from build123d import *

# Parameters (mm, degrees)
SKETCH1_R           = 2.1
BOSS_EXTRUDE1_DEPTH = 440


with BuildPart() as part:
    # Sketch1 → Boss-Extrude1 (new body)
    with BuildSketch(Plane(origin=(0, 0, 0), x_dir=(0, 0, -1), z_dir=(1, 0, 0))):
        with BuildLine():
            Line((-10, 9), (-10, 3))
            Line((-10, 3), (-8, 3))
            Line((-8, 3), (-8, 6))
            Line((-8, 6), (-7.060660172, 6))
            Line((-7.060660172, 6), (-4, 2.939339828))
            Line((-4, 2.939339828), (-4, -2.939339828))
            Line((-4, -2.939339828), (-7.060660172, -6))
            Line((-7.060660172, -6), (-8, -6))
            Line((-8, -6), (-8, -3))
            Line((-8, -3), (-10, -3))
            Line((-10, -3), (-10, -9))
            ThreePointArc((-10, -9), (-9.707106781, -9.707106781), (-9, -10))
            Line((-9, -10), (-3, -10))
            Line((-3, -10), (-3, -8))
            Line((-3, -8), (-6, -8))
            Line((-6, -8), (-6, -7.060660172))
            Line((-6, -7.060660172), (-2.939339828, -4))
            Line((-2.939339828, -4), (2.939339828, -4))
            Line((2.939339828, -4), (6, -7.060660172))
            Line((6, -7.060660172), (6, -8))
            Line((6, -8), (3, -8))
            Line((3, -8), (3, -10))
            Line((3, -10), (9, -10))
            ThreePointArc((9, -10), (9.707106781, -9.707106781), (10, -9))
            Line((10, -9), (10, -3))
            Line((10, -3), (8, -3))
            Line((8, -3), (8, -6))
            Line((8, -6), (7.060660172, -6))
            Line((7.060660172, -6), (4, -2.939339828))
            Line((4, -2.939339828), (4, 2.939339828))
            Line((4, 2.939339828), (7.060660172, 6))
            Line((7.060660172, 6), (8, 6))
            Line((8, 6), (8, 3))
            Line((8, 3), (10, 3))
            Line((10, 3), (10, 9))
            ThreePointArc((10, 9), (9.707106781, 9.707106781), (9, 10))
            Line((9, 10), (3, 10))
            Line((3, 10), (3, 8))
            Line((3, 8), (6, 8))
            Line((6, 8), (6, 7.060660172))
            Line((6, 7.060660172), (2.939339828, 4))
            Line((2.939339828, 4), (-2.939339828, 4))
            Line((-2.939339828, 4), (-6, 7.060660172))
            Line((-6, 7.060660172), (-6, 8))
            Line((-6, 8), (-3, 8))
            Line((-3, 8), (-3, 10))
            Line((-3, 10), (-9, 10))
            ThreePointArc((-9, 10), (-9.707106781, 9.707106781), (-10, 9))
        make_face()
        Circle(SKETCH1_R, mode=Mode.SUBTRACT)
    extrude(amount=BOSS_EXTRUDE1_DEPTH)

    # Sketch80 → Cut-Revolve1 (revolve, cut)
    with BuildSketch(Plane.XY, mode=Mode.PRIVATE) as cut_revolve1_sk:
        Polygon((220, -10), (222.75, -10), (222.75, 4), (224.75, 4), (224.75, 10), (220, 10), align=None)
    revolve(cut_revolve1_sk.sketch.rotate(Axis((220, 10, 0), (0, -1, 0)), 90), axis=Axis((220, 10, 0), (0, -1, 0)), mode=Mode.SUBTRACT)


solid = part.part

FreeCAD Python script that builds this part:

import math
import FreeCAD as App
import Part
import Sketcher
from FreeCAD import Vector
Q = App.Units.Quantity

doc = App.newDocument("Part")
body = doc.addObject("PartDesign::Body", "Body")

sketch1 = doc.addObject("Sketcher::SketchObject", "Sketch")
body.addObject(sketch1)
sketch1.AttachmentSupport = (doc.YZ_Plane, [""])
sketch1.MapMode = "FlatFace"
sketch1.addGeometry([
    Part.LineSegment(Vector(9, 10, 0), Vector(3, 10, 0)),
    Part.LineSegment(Vector(3, 10, 0), Vector(3, 8, 0)),
    Part.LineSegment(Vector(3, 8, 0), Vector(6, 8, 0)),
    Part.LineSegment(Vector(6, 8, 0), Vector(6, 7.06066, 0)),
    Part.LineSegment(Vector(6, 7.06066, 0), Vector(2.93934, 4, 0)),
    Part.LineSegment(Vector(2.93934, 4, 0), Vector(-2.93934, 4, 0)),
    Part.LineSegment(Vector(-2.93934, 4, 0), Vector(-6, 7.06066, 0)),
    Part.LineSegment(Vector(-6, 7.06066, 0), Vector(-6, 8, 0)),
    Part.LineSegment(Vector(-6, 8, 0), Vector(-3, 8, 0)),
    Part.LineSegment(Vector(-3, 8, 0), Vector(-3, 10, 0)),
    Part.LineSegment(Vector(-3, 10, 0), Vector(-9, 10, 0)),
    Part.ArcOfCircle(Part.Circle(Vector(-9, 9, 0), Vector(0, 0, 1), 1), math.radians(90), math.radians(180)),
    Part.LineSegment(Vector(-10, 9, 0), Vector(-10, 3, 0)),
    Part.LineSegment(Vector(-10, 3, 0), Vector(-8, 3, 0)),
    Part.LineSegment(Vector(-8, 3, 0), Vector(-8, 6, 0)),
    Part.LineSegment(Vector(-8, 6, 0), Vector(-7.06066, 6, 0)),
    Part.LineSegment(Vector(-7.06066, 6, 0), Vector(-4, 2.93934, 0)),
    Part.LineSegment(Vector(-4, 2.93934, 0), Vector(-4, -2.93934, 0)),
    Part.LineSegment(Vector(-4, -2.93934, 0), Vector(-7.06066, -6, 0)),
    Part.LineSegment(Vector(-7.06066, -6, 0), Vector(-8, -6, 0)),
    Part.LineSegment(Vector(-8, -6, 0), Vector(-8, -3, 0)),
    Part.LineSegment(Vector(-8, -3, 0), Vector(-10, -3, 0)),
    Part.LineSegment(Vector(-10, -3, 0), Vector(-10, -9, 0)),
    Part.ArcOfCircle(Part.Circle(Vector(-9, -9, 0), Vector(0, 0, 1), 1), math.radians(-180), math.radians(-90)),
    Part.LineSegment(Vector(-9, -10, 0), Vector(-3, -10, 0)),
    Part.LineSegment(Vector(-3, -10, 0), Vector(-3, -8, 0)),
    Part.LineSegment(Vector(-3, -8, 0), Vector(-6, -8, 0)),
    Part.LineSegment(Vector(-6, -8, 0), Vector(-6, -7.06066, 0)),
    Part.LineSegment(Vector(-6, -7.06066, 0), Vector(-2.93934, -4, 0)),
    Part.LineSegment(Vector(-2.93934, -4, 0), Vector(2.93934, -4, 0)),
    Part.LineSegment(Vector(2.93934, -4, 0), Vector(6, -7.06066, 0)),
    Part.LineSegment(Vector(6, -7.06066, 0), Vector(6, -8, 0)),
    Part.LineSegment(Vector(6, -8, 0), Vector(3, -8, 0)),
    Part.LineSegment(Vector(3, -8, 0), Vector(3, -10, 0)),
    Part.LineSegment(Vector(3, -10, 0), Vector(9, -10, 0)),
    Part.ArcOfCircle(Part.Circle(Vector(9, -9, 0), Vector(0, 0, 1), 1), math.radians(-90), math.radians(0)),
    Part.LineSegment(Vector(10, -9, 0), Vector(10, -3, 0)),
    Part.LineSegment(Vector(10, -3, 0), Vector(8, -3, 0)),
    Part.LineSegment(Vector(8, -3, 0), Vector(8, -6, 0)),
    Part.LineSegment(Vector(8, -6, 0), Vector(7.06066, -6, 0)),
    Part.LineSegment(Vector(7.06066, -6, 0), Vector(4, -2.93934, 0)),
    Part.LineSegment(Vector(4, -2.93934, 0), Vector(4, 2.93934, 0)),
    Part.LineSegment(Vector(4, 2.93934, 0), Vector(7.06066, 6, 0)),
    Part.LineSegment(Vector(7.06066, 6, 0), Vector(8, 6, 0)),
    Part.LineSegment(Vector(8, 6, 0), Vector(8, 3, 0)),
    Part.LineSegment(Vector(8, 3, 0), Vector(10, 3, 0)),
    Part.LineSegment(Vector(10, 3, 0), Vector(10, 9, 0)),
    Part.ArcOfCircle(Part.Circle(Vector(9, 9, 0), Vector(0, 0, 1), 1), math.radians(0), math.radians(90)),
    Part.Circle(Vector(0, 0, 0), Vector(0, 0, 1), 2.1),
], False)
sketch1.addConstraint([
    Sketcher.Constraint("Coincident", 0, 2, 1, 1),
    Sketcher.Constraint("Coincident", 1, 2, 2, 1),
    Sketcher.Constraint("Coincident", 2, 2, 3, 1),
    Sketcher.Constraint("Coincident", 3, 2, 4, 1),
    Sketcher.Constraint("Coincident", 4, 2, 5, 1),
    Sketcher.Constraint("Coincident", 5, 2, 6, 1),
    Sketcher.Constraint("Coincident", 6, 2, 7, 1),
    Sketcher.Constraint("Coincident", 7, 2, 8, 1),
    Sketcher.Constraint("Coincident", 8, 2, 9, 1),
    Sketcher.Constraint("Coincident", 9, 2, 10, 1),
    Sketcher.Constraint("Tangent", 10, 2, 11, 1),
    Sketcher.Constraint("Tangent", 11, 2, 12, 1),
    Sketcher.Constraint("Coincident", 12, 2, 13, 1),
    Sketcher.Constraint("Coincident", 13, 2, 14, 1),
    Sketcher.Constraint("Coincident", 14, 2, 15, 1),
    Sketcher.Constraint("Coincident", 15, 2, 16, 1),
    Sketcher.Constraint("Coincident", 16, 2, 17, 1),
    Sketcher.Constraint("Coincident", 17, 2, 18, 1),
    Sketcher.Constraint("Coincident", 18, 2, 19, 1),
    Sketcher.Constraint("Coincident", 19, 2, 20, 1),
    Sketcher.Constraint("Coincident", 20, 2, 21, 1),
    Sketcher.Constraint("Coincident", 21, 2, 22, 1),
    Sketcher.Constraint("Tangent", 22, 2, 23, 1),
    Sketcher.Constraint("Tangent", 23, 2, 24, 1),
    Sketcher.Constraint("Coincident", 24, 2, 25, 1),
    Sketcher.Constraint("Coincident", 25, 2, 26, 1),
    Sketcher.Constraint("Coincident", 26, 2, 27, 1),
    Sketcher.Constraint("Coincident", 27, 2, 28, 1),
    Sketcher.Constraint("Coincident", 28, 2, 29, 1),
    Sketcher.Constraint("Coincident", 29, 2, 30, 1),
    Sketcher.Constraint("Coincident", 30, 2, 31, 1),
    Sketcher.Constraint("Coincident", 31, 2, 32, 1),
    Sketcher.Constraint("Coincident", 32, 2, 33, 1),
    Sketcher.Constraint("Coincident", 33, 2, 34, 1),
    Sketcher.Constraint("Tangent", 34, 2, 35, 1),
    Sketcher.Constraint("Tangent", 35, 2, 36, 1),
    Sketcher.Constraint("Coincident", 36, 2, 37, 1),
    Sketcher.Constraint("Coincident", 37, 2, 38, 1),
    Sketcher.Constraint("Coincident", 38, 2, 39, 1),
    Sketcher.Constraint("Coincident", 39, 2, 40, 1),
    Sketcher.Constraint("Coincident", 40, 2, 41, 1),
    Sketcher.Constraint("Coincident", 41, 2, 42, 1),
    Sketcher.Constraint("Coincident", 42, 2, 43, 1),
    Sketcher.Constraint("Coincident", 43, 2, 44, 1),
    Sketcher.Constraint("Coincident", 44, 2, 45, 1),
    Sketcher.Constraint("Coincident", 45, 2, 46, 1),
    Sketcher.Constraint("Tangent", 46, 2, 47, 1),
    Sketcher.Constraint("Tangent", 47, 2, 0, 1),
    Sketcher.Constraint("Horizontal", 0),
    Sketcher.Constraint("Vertical", 1),
    Sketcher.Constraint("Horizontal", 2),
    Sketcher.Constraint("Vertical", 3),
    Sketcher.Constraint("Horizontal", 5),
    Sketcher.Constraint("Vertical", 7),
    Sketcher.Constraint("Horizontal", 8),
    Sketcher.Constraint("Vertical", 9),
    Sketcher.Constraint("Horizontal", 10),
    Sketcher.Constraint("Vertical", 12),
    Sketcher.Constraint("Horizontal", 13),
    Sketcher.Constraint("Vertical", 14),
    Sketcher.Constraint("Horizontal", 15),
    Sketcher.Constraint("Vertical", 17),
    Sketcher.Constraint("Horizontal", 19),
    Sketcher.Constraint("Vertical", 20),
    Sketcher.Constraint("Horizontal", 21),
    Sketcher.Constraint("Vertical", 22),
    Sketcher.Constraint("Horizontal", 24),
    Sketcher.Constraint("Vertical", 25),
    Sketcher.Constraint("Horizontal", 26),
    Sketcher.Constraint("Vertical", 27),
    Sketcher.Constraint("Horizontal", 29),
    Sketcher.Constraint("Vertical", 31),
    Sketcher.Constraint("Horizontal", 32),
    Sketcher.Constraint("Vertical", 33),
    Sketcher.Constraint("Horizontal", 34),
    Sketcher.Constraint("Vertical", 36),
    Sketcher.Constraint("Horizontal", 37),
    Sketcher.Constraint("Vertical", 38),
    Sketcher.Constraint("Horizontal", 39),
    Sketcher.Constraint("Vertical", 41),
    Sketcher.Constraint("Horizontal", 43),
    Sketcher.Constraint("Vertical", 44),
    Sketcher.Constraint("Horizontal", 45),
    Sketcher.Constraint("Vertical", 46),
    Sketcher.Constraint("Coincident", 48, 3, -1, 1),
    Sketcher.Constraint("Equal", 11, 23),
    Sketcher.Constraint("Equal", 23, 35),
    Sketcher.Constraint("Equal", 35, 47),
    Sketcher.Constraint("Symmetric", 11, 3, 35, 3, -1, 1),
    Sketcher.Constraint("Symmetric", 23, 3, 47, 3, -1, 1),
    Sketcher.Constraint("Symmetric", 1, 2, 25, 2, -1, 1),
    Sketcher.Constraint("Symmetric", 3, 2, 27, 2, -1, 1),
    Sketcher.Constraint("Symmetric", 4, 2, 28, 2, -1, 1),
    Sketcher.Constraint("Symmetric", 6, 2, 30, 2, -1, 1),
    Sketcher.Constraint("Symmetric", 8, 2, 32, 2, -1, 1),
    Sketcher.Constraint("Symmetric", 13, 2, 37, 2, -1, 1),
    Sketcher.Constraint("Symmetric", 15, 2, 39, 2, -1, 1),
    Sketcher.Constraint("Symmetric", 16, 2, 40, 2, -1, 1),
    Sketcher.Constraint("Symmetric", 18, 2, 42, 2, -1, 1),
    Sketcher.Constraint("Symmetric", 20, 2, 44, 2, -1, 1),
    Sketcher.Constraint("Symmetric", 23, 3, 35, 3, -2),
    Sketcher.Constraint("Symmetric", 3, 2, 6, 2, -2),
    Sketcher.Constraint("Symmetric", 1, 2, 8, 2, -2),
    Sketcher.Constraint("Symmetric", 20, 2, 37, 2, -2),
    Sketcher.Constraint("Symmetric", 18, 2, 39, 2, -2),
    Sketcher.Constraint("Perpendicular", 4, 6),
    Sketcher.Constraint("Parallel", 6, 16),
    Sketcher.Constraint("Perpendicular", 16, 18),
    Sketcher.Constraint("Perpendicular", 28, 30),
    Sketcher.Constraint("Perpendicular", 40, 42),
    Sketcher.Constraint("Horizontal", 17, 2, 40, 2),
    Sketcher.Constraint("Equal", 45, 1),
    Sketcher.Constraint("Equal", 43, 3),
    Sketcher.Constraint("Equal", 34, 12),
    Sketcher.Constraint("Equal", 32, 14),
    Sketcher.Constraint("Equal", 29, 17),
    Sketcher.Constraint("Equal", 6, 16),
    Sketcher.Constraint("Radius", 11, Q("1 mm")),
    Sketcher.Constraint("Diameter", 48, Q("4.2 mm")),
    Sketcher.Constraint("DistanceX", 0, 2, 0, 1, Q("6 mm")),
    Sketcher.Constraint("DistanceX", 2, 1, 2, 2, Q("3 mm")),
    Sketcher.Constraint("DistanceX", 13, 1, 13, 2, Q("2 mm")),
    Sketcher.Constraint("DistanceX", 11, 3, -1, 1, Q("9 mm")),
    Sketcher.Constraint("DistanceY", -1, 1, 4, 2, Q("4 mm")),
    Sketcher.Constraint("DistanceX", 5, 2, 5, 1, Q("5.87868 mm")),
])
pad1 = doc.addObject("PartDesign::Pad", "Pad")
body.addObject(pad1)
pad1.Profile = sketch1
pad1.Length = 440

sketch2 = doc.addObject("Sketcher::SketchObject", "Sketch001")
body.addObject(sketch2)
sketch2.AttachmentSupport = (doc.XY_Plane, [""])
sketch2.MapMode = "FlatFace"
sketch2.addGeometry([
    Part.LineSegment(Vector(220, -10, 0), Vector(222.75, -10, 0)),
    Part.LineSegment(Vector(222.75, -10, 0), Vector(222.75, 4, 0)),
    Part.LineSegment(Vector(222.75, 4, 0), Vector(224.75, 4, 0)),
    Part.LineSegment(Vector(224.75, 4, 0), Vector(224.75, 10, 0)),
    Part.LineSegment(Vector(224.75, 10, 0), Vector(220, 10, 0)),
    Part.LineSegment(Vector(220, 10, 0), Vector(220, -10, 0)),
], False)
sketch2.addGeometry(Part.LineSegment(Vector(220, 10, 0), Vector(220, -10, 0)), True)
sketch2.addConstraint([
    Sketcher.Constraint("Coincident", 0, 2, 1, 1),
    Sketcher.Constraint("Coincident", 1, 2, 2, 1),
    Sketcher.Constraint("Coincident", 2, 2, 3, 1),
    Sketcher.Constraint("Coincident", 3, 2, 4, 1),
    Sketcher.Constraint("Coincident", 4, 2, 5, 1),
    Sketcher.Constraint("Coincident", 5, 2, 0, 1),
    Sketcher.Constraint("Horizontal", 0),
    Sketcher.Constraint("Vertical", 1),
    Sketcher.Constraint("Horizontal", 2),
    Sketcher.Constraint("Vertical", 3),
    Sketcher.Constraint("Horizontal", 4),
    Sketcher.Constraint("Vertical", 5),
    Sketcher.Constraint("Vertical", 6),
    Sketcher.Constraint("Coincident", 6, 1, 4, 2),
    Sketcher.Constraint("Horizontal", 0, 2, 6, 2),
    Sketcher.Constraint("DistanceX", 2, 1, 2, 2, Q("2 mm")),
    Sketcher.Constraint("DistanceY", 1, 1, 1, 2, Q("14 mm")),
    Sketcher.Constraint("DistanceY", 3, 1, 3, 2, Q("6 mm")),
    Sketcher.Constraint("DistanceY", 0, 2, -1, 1, Q("10 mm")),
    Sketcher.Constraint("DistanceX", -1, 1, 4, 2, Q("220 mm")),
    Sketcher.Constraint("DistanceX", 0, 1, 0, 2, Q("2.75 mm")),
])
groove = doc.addObject("PartDesign::Groove", "Groove")
body.addObject(groove)
groove.Profile = sketch2
groove.ReferenceAxis = (sketch2, ["Axis0"])
groove.Angle = 360

doc.recompute()
